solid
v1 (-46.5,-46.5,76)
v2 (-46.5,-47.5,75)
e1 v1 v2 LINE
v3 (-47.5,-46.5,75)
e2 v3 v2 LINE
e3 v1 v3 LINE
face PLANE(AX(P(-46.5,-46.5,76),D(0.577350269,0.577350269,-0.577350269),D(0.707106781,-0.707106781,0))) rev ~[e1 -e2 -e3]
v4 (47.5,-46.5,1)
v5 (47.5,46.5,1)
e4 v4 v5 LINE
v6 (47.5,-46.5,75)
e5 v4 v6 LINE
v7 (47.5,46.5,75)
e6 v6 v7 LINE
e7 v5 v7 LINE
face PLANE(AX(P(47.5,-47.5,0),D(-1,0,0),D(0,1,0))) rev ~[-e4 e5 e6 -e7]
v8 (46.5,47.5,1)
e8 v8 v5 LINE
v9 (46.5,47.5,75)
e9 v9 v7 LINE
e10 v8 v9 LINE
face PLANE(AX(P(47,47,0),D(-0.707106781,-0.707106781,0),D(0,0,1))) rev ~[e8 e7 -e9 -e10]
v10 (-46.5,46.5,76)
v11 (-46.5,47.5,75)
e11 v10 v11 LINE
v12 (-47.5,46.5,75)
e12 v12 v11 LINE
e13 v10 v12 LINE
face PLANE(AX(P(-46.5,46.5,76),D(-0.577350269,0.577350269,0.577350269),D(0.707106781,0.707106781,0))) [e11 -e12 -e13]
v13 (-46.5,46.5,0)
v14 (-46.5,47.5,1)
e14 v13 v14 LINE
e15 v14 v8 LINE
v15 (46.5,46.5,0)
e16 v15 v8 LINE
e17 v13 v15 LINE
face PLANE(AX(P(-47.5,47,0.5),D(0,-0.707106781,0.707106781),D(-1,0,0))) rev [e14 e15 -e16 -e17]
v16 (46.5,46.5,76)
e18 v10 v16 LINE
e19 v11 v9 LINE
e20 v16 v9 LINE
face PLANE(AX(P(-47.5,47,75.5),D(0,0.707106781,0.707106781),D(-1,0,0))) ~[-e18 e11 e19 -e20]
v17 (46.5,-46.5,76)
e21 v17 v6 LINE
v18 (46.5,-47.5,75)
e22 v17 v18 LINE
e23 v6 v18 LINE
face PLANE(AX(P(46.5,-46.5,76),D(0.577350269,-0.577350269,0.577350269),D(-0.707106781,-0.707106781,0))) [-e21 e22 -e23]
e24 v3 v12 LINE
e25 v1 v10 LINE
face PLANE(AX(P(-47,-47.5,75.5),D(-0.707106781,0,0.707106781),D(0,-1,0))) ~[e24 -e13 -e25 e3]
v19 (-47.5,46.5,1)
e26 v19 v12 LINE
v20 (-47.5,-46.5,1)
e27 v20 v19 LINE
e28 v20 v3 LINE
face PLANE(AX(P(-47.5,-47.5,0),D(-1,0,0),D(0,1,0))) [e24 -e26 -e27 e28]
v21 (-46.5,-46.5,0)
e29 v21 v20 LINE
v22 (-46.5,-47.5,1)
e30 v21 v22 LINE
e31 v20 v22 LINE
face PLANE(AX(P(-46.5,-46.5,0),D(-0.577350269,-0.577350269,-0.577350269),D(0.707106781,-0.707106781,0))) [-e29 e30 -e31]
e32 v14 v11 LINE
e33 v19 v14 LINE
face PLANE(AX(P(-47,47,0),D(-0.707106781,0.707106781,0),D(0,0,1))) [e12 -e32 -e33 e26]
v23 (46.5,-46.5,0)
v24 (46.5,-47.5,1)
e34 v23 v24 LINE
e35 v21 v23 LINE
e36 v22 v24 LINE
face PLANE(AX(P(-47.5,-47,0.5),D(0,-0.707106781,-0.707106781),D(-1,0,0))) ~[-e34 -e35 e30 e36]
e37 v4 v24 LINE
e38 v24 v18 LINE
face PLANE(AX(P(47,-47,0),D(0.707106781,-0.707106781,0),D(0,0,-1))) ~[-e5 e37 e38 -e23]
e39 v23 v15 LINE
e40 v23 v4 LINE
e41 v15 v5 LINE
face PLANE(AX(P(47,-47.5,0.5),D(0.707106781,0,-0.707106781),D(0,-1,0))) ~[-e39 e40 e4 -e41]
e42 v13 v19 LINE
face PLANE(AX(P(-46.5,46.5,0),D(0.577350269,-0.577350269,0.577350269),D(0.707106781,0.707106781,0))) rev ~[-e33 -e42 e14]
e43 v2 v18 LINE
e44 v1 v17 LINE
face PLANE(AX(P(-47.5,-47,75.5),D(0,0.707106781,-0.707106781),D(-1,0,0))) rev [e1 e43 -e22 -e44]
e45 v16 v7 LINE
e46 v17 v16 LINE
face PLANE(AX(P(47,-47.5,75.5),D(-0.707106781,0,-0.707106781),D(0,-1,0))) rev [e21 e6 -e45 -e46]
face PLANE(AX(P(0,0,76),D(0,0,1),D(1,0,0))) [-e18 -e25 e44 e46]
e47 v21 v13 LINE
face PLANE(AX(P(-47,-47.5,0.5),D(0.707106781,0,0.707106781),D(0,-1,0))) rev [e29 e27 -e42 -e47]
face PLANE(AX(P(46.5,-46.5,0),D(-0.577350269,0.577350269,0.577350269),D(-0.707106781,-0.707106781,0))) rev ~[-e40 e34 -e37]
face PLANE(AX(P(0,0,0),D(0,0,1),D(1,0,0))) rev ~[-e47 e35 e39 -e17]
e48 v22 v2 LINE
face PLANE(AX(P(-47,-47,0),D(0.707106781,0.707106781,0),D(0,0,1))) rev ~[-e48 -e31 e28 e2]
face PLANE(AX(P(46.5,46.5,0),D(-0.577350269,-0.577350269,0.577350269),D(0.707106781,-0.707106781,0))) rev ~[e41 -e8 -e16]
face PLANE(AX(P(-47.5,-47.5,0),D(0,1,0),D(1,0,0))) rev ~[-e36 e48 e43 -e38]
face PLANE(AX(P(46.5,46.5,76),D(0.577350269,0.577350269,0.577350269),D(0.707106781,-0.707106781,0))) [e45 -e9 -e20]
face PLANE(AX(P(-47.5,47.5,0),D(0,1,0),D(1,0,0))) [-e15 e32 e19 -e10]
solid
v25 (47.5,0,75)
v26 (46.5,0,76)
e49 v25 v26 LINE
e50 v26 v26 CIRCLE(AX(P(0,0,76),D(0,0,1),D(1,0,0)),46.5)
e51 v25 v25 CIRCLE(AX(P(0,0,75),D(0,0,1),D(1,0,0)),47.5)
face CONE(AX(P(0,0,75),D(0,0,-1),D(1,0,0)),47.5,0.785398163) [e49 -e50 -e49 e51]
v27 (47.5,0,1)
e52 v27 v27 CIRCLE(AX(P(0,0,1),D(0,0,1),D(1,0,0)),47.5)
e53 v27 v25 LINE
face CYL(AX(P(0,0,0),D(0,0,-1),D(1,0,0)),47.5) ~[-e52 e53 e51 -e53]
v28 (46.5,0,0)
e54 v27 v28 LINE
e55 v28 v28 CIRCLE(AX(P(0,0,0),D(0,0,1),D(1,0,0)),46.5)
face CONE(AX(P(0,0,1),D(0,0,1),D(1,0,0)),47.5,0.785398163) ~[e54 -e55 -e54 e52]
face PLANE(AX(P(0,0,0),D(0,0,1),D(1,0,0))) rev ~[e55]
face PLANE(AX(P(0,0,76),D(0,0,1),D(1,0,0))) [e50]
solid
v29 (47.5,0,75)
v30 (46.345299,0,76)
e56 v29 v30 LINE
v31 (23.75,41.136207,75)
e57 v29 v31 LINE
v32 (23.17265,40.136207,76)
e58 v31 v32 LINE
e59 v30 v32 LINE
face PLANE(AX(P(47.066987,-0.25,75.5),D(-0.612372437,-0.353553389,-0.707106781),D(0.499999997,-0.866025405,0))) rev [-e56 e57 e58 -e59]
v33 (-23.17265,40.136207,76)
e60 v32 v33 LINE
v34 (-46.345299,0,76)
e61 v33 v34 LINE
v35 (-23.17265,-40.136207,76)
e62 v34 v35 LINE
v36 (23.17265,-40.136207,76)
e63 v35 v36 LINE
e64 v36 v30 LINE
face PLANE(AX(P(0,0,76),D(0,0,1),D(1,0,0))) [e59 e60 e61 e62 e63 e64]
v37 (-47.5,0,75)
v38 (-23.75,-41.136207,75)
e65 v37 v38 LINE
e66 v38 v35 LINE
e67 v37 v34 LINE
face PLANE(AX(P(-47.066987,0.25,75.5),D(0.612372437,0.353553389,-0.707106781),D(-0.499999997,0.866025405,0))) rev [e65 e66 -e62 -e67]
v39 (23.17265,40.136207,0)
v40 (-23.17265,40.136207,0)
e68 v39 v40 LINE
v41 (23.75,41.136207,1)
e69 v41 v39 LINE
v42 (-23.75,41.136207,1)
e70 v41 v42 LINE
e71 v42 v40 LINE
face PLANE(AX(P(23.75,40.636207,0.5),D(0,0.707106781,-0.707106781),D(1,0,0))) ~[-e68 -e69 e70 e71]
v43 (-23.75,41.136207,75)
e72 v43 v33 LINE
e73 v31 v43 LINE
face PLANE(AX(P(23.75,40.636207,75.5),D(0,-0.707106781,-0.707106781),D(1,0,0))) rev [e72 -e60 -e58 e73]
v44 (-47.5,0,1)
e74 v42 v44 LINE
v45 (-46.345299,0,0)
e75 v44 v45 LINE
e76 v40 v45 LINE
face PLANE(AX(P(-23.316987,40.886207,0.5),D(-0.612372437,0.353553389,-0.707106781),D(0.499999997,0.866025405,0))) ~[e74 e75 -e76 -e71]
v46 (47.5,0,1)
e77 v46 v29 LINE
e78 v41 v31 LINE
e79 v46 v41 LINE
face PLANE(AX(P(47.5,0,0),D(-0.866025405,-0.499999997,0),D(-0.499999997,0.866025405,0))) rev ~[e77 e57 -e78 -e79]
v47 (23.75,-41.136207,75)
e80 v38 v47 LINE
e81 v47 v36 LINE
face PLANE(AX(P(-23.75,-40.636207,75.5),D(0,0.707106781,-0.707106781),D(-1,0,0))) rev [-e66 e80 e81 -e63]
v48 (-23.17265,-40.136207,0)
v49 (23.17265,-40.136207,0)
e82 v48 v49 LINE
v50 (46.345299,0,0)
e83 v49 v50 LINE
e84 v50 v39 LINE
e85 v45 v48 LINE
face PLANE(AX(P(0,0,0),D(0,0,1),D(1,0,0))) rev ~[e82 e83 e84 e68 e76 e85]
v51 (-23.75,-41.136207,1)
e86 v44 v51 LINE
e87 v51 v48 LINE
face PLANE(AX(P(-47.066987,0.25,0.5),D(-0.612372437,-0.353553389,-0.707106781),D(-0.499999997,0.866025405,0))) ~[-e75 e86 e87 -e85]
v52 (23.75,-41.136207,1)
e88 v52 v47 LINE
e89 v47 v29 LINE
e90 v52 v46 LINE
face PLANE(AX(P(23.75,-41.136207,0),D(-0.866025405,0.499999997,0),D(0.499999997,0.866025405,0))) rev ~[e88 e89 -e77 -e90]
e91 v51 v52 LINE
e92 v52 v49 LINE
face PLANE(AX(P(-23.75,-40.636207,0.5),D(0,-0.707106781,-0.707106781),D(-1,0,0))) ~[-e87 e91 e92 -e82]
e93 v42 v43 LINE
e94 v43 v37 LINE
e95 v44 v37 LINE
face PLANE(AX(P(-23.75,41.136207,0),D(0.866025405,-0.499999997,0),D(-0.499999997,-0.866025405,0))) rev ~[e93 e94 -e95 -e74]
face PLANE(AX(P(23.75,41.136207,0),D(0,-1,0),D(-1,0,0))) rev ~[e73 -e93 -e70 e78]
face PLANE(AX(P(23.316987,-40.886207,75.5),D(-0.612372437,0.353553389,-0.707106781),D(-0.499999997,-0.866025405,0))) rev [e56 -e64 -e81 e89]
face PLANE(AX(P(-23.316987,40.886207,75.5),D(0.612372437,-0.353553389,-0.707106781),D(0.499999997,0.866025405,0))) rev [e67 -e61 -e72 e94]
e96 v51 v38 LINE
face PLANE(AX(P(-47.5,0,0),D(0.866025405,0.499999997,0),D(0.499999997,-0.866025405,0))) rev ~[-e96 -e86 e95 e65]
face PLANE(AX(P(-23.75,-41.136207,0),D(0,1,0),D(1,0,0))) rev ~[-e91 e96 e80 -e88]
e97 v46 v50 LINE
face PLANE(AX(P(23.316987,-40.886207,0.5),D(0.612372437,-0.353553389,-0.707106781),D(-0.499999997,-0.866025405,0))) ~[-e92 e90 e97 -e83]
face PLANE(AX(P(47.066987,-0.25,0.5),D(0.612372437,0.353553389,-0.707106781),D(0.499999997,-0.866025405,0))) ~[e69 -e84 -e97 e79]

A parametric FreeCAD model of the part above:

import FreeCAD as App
import Part
import Sketcher
from FreeCAD import Vector
Q = App.Units.Quantity


def edges_at(feature, points):
    """Names of the edges that pass closest to the given points."""
    edges = feature.Shape.Edges
    near = lambda p: min(range(len(edges)), key=lambda i: edges[i].distToShape(Part.Vertex(*p))[0])
    return sorted({f"Edge{near(p) + 1}" for p in points})


def add_polygon(sketch, points):
    """Adds a closed chain of lines whose ends are joined by coincident constraints."""
    first, n = sketch.GeometryCount, len(points)
    for a, b in zip(points, points[1:] + points[:1]):
        sketch.addGeometry(Part.LineSegment(App.Vector(*a, 0), App.Vector(*b, 0)), False)
    for i in range(n):
        sketch.addConstraint(Sketcher.Constraint("Coincident", first + i, 2, first + (i + 1) % n, 1))

doc = App.newDocument("Part")
body = doc.addObject("PartDesign::Body", "Body")

sketch1 = body.newObject("Sketcher::SketchObject", "Sketch")
sketch1.AttachmentSupport = (doc.getObject("XY_Plane"), [""])
sketch1.MapMode = "FlatFace"
add_polygon(sketch1, [(-48, 48), (-48, -48), (48, -48), (48, 48)])
sketch1.addConstraint([
    Sketcher.Constraint("Vertical", 0),
    Sketcher.Constraint("Horizontal", 1),
    Sketcher.Constraint("Vertical", 2),
    Sketcher.Constraint("Horizontal", 3),
    Sketcher.Constraint("Symmetric", 0, 2, 2, 2, -1, 1),
    Sketcher.Constraint("Equal", 3, 0),
    Sketcher.Constraint("DistanceX", 1, 1, 1, 2, Q("95 mm")),
])
pad1 = body.newObject("PartDesign::Pad", "Pad")
pad1.Profile = sketch1
pad1.Length = 76
doc.recompute()

chamfer = body.newObject("PartDesign::Chamfer", "Chamfer")
chamfer.Base = (pad1, ["Edge1"])
chamfer.UseAllEdges = True
chamfer.Size = 1
body2 = doc.addObject("PartDesign::Body", "Body001")

sketch2 = body2.newObject("Sketcher::SketchObject", "Sketch001")
sketch2.AttachmentSupport = (doc.getObject("XY_Plane001"), [""])
sketch2.MapMode = "FlatFace"
add_polygon(sketch2, [(48, 0), (24, 41), (-24, 41), (-48, 0), (-24, -41), (24, -41)])
sketch2.addConstraint([
    Sketcher.Constraint("Horizontal", 1),
    Sketcher.Constraint("Horizontal", 4),
    Sketcher.Constraint("Symmetric", 0, 2, 3, 2, -1, 1),
    Sketcher.Constraint("Symmetric", 2, 2, 5, 2, -1, 1),
    Sketcher.Constraint("PointOnObject", 2, 2, -1),
    Sketcher.Constraint("Parallel", 2, 5),
    Sketcher.Constraint("Vertical", 1, 2, 3, 2),
    Sketcher.Constraint("Angle", 0, Q("120 deg")),
    Sketcher.Constraint("DistanceX", 1, 2, 1, 1, Q("47.5 mm")),
    Sketcher.Constraint("DistanceX", 2, 2, 5, 2, Q("95 mm")),
])
pad2 = body2.newObject("PartDesign::Pad", "Pad001")
pad2.Profile = sketch2
pad2.Length = 76
doc.recompute()

chamfer2 = body2.newObject("PartDesign::Chamfer", "Chamfer001")
chamfer2.Base = (pad2, edges_at(pad2, [
    (35.625, 20.568, 76),
    (0, 41.136, 76),
    (-35.625, 20.568, 76),
    (-35.625, -20.568, 76),
    (0, -41.136, 76),
    (35.625, -20.568, 76),
    (35.625, 20.568, 0),
    (0, 41.136, 0),
    (-35.625, 20.568, 0),
    (-35.625, -20.568, 0),
    (0, -41.136, 0),
    (35.625, -20.568, 0),
]))
chamfer2.Size = 1
body3 = doc.addObject("PartDesign::Body", "Body002")

sketch3 = body3.newObject("Sketcher::SketchObject", "Sketch002")
sketch3.AttachmentSupport = (doc.getObject("XY_Plane002"), [""])
sketch3.MapMode = "FlatFace"
sketch3.addGeometry(Part.Circle(Vector(0, 0, 0), Vector(0, 0, 1), 48), False)
sketch3.addConstraint([
    Sketcher.Constraint("Coincident", 0, 3, -1, 1),
    Sketcher.Constraint("Diameter", 0, Q("95 mm")),
])
pad3 = body3.newObject("PartDesign::Pad", "Pad002")
pad3.Profile = sketch3
pad3.Length = 76
doc.recompute()

chamfer3 = body3.newObject("PartDesign::Chamfer", "Chamfer002")
chamfer3.Base = (pad3, edges_at(pad3, [(-47.5, 0, 76), (-47.5, 0, 0)]))
chamfer3.Size = 1

doc.recompute()
